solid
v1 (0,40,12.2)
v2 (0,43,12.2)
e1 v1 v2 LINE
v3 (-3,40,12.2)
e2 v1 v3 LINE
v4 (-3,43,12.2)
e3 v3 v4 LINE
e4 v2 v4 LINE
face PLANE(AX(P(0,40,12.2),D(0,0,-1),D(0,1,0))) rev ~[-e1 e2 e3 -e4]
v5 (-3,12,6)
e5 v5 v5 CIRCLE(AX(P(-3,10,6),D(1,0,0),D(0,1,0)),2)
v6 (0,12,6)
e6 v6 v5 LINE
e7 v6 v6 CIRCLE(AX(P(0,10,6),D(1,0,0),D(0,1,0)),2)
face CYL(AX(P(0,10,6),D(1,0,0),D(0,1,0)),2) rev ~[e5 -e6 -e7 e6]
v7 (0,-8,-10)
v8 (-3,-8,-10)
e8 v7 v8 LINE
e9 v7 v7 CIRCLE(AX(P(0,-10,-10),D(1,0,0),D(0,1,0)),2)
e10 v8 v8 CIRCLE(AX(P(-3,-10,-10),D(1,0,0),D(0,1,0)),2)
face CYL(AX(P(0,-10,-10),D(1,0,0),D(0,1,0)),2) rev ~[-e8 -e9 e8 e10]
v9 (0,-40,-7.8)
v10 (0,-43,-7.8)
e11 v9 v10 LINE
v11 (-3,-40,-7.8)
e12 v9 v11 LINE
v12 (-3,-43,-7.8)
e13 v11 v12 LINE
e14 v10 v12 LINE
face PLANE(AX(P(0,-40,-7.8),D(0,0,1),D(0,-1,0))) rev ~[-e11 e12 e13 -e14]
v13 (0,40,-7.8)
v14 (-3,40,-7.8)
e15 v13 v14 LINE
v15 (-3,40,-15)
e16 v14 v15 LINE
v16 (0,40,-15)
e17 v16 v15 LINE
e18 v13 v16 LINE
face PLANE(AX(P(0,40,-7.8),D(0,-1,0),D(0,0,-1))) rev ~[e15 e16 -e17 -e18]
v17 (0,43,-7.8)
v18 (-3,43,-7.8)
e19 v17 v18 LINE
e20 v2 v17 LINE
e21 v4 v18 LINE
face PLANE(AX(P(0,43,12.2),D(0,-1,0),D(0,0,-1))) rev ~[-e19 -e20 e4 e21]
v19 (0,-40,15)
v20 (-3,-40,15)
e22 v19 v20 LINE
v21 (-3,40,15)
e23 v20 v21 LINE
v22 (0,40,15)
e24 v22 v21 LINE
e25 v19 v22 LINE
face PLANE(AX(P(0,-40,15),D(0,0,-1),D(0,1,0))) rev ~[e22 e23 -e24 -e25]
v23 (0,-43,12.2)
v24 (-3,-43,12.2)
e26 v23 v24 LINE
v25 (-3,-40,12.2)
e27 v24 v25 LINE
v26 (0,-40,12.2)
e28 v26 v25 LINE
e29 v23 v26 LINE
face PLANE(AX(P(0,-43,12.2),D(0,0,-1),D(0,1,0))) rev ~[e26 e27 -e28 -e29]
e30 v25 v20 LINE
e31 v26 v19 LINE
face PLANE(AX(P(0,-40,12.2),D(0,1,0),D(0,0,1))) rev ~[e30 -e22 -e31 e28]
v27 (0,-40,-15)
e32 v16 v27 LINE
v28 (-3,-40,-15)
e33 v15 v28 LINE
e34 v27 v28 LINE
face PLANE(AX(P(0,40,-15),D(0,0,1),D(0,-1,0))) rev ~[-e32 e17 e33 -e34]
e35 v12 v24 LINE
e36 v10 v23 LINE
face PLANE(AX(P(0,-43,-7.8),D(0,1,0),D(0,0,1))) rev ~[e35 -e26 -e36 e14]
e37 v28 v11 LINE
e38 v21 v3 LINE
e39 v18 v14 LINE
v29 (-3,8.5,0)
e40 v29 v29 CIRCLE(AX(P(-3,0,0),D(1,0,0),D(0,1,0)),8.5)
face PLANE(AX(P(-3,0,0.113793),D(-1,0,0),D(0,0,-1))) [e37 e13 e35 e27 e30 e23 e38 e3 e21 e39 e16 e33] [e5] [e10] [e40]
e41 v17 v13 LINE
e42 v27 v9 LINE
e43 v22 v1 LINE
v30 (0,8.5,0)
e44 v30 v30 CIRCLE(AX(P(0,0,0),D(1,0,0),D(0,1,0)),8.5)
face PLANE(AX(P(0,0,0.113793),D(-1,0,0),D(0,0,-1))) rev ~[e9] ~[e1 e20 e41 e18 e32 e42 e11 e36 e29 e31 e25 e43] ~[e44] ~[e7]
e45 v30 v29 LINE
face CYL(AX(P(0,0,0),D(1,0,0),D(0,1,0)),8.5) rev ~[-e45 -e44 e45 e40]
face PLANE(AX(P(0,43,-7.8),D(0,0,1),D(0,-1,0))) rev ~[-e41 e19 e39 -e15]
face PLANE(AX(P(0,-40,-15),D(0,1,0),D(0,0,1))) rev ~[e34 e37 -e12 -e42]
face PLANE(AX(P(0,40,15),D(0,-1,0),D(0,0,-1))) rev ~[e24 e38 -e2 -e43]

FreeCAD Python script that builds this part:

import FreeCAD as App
import Part
import Sketcher
from FreeCAD import Vector

doc = App.newDocument("Part")
params = doc.addObject("Spreadsheet::Sheet", "Params")
for row, (alias, value) in enumerate([
    ("sketch1_diameter", "4 mm"),
    ("sketch1_diameter2", "17 mm"),
    ("sketch1_height", "20 mm"),
    ("sketch1_height2", "2.8 mm"),
    ("sketch1_height3", "7.2 mm"),
    ("pad1_length", "3 mm"),
], start=1):
    params.set(f"A{row}", alias)
    params.set(f"B{row}", "=" + value)
    params.setAlias(f"B{row}", alias)

body = doc.addObject("PartDesign::Body", "Body")

sketch1 = body.newObject("Sketcher::SketchObject", "Sketch")
sketch1.AttachmentSupport = (doc.getObject("YZ_Plane"), [""])
sketch1.MapMode = "FlatFace"
sketch1.addGeometry([
    Part.LineSegment(Vector(40, 12.2, 0), Vector(40, 15, 0)),
    Part.LineSegment(Vector(40, 15, 0), Vector(-40, 15, 0)),
    Part.LineSegment(Vector(-40, 15, 0), Vector(-40, 12.2, 0)),
    Part.LineSegment(Vector(-40, 12.2, 0), Vector(-43, 12.2, 0)),
    Part.LineSegment(Vector(-43, 12.2, 0), Vector(-43, -7.8, 0)),
    Part.LineSegment(Vector(-43, -7.8, 0), Vector(-40, -7.8, 0)),
    Part.LineSegment(Vector(-40, -7.8, 0), Vector(-40, -15, 0)),
    Part.LineSegment(Vector(-40, -15, 0), Vector(40, -15, 0)),
    Part.LineSegment(Vector(40, -15, 0), Vector(40, -7.8, 0)),
    Part.LineSegment(Vector(40, -7.8, 0), Vector(43, -7.8, 0)),
    Part.LineSegment(Vector(43, -7.8, 0), Vector(43, 12.2, 0)),
    Part.LineSegment(Vector(43, 12.2, 0), Vector(40, 12.2, 0)),
    Part.Circle(Vector(-10, -10, 0), Vector(0, 0, 1), 2),
    Part.Circle(Vector(0, 0, 0), Vector(0, 0, 1), 8.5),
    Part.Circle(Vector(10, 6, 0), Vector(0, 0, 1), 2),
], False)
sketch1.addConstraint([
    Sketcher.Constraint("Coincident", 0, 2, 1, 1),
    Sketcher.Constraint("Coincident", 1, 2, 2, 1),
    Sketcher.Constraint("Coincident", 2, 2, 3, 1),
    Sketcher.Constraint("Coincident", 3, 2, 4, 1),
    Sketcher.Constraint("Coincident", 4, 2, 5, 1),
    Sketcher.Constraint("Coincident", 5, 2, 6, 1),
    Sketcher.Constraint("Coincident", 6, 2, 7, 1),
    Sketcher.Constraint("Coincident", 7, 2, 8, 1),
    Sketcher.Constraint("Coincident", 8, 2, 9, 1),
    Sketcher.Constraint("Coincident", 9, 2, 10, 1),
    Sketcher.Constraint("Coincident", 10, 2, 11, 1),
    Sketcher.Constraint("Coincident", 11, 2, 0, 1),
    Sketcher.Constraint("Vertical", 0),
    Sketcher.Constraint("Horizontal", 1),
    Sketcher.Constraint("Vertical", 2),
    Sketcher.Constraint("Horizontal", 3),
    Sketcher.Constraint("Vertical", 4),
    Sketcher.Constraint("Horizontal", 5),
    Sketcher.Constraint("Vertical", 6),
    Sketcher.Constraint("Horizontal", 7),
    Sketcher.Constraint("Vertical", 8),
    Sketcher.Constraint("Horizontal", 9),
    Sketcher.Constraint("Vertical", 10),
    Sketcher.Constraint("Horizontal", 11),
    Sketcher.Constraint("Coincident", 13, 3, -1, 1),
    Sketcher.Constraint("Equal", 12, 14),
    Sketcher.Constraint("Symmetric", 0, 2, 6, 2, -1, 1),
    Sketcher.Constraint("Symmetric", 5, 2, 8, 2, -2),
    Sketcher.Constraint("Symmetric", 3, 2, 10, 2, -2),
    Sketcher.Constraint("Vertical", 2, 2, 5, 2),
    Sketcher.Constraint("Diameter", 12, 4.0),
    Sketcher.Constraint("Diameter", 13, 17.0),
    Sketcher.Constraint("DistanceX", -1, 1, 0, 2, 40.0),
    Sketcher.Constraint("DistanceX", 3, 2, -1, 1, 43.0),
    Sketcher.Constraint("DistanceY", 4, 2, 4, 1, 20.0),
    Sketcher.Constraint("DistanceY", 0, 1, 0, 2, 2.8),
    Sketcher.Constraint("DistanceY", 6, 2, 6, 1, 7.2),
    Sketcher.Constraint("DistanceX", 12, 3, -1, 1, 10.0),
    Sketcher.Constraint("DistanceY", 12, 3, -1, 1, 10.0),
    Sketcher.Constraint("DistanceX", -1, 1, 14, 3, 10.0),
    Sketcher.Constraint("DistanceY", -1, 1, 14, 3, 6.0),
])
sketch1.setExpression("Constraints[30]", "Params.sketch1_diameter")
sketch1.setExpression("Constraints[31]", "Params.sketch1_diameter2")
sketch1.setExpression("Constraints[34]", "Params.sketch1_height")
sketch1.setExpression("Constraints[35]", "Params.sketch1_height2")
sketch1.setExpression("Constraints[36]", "Params.sketch1_height3")
pad1 = body.newObject("PartDesign::Pad", "Pad")
pad1.Profile = sketch1
pad1.setExpression("Length", "Params.pad1_length")
pad1.Reversed = True

doc.recompute()
